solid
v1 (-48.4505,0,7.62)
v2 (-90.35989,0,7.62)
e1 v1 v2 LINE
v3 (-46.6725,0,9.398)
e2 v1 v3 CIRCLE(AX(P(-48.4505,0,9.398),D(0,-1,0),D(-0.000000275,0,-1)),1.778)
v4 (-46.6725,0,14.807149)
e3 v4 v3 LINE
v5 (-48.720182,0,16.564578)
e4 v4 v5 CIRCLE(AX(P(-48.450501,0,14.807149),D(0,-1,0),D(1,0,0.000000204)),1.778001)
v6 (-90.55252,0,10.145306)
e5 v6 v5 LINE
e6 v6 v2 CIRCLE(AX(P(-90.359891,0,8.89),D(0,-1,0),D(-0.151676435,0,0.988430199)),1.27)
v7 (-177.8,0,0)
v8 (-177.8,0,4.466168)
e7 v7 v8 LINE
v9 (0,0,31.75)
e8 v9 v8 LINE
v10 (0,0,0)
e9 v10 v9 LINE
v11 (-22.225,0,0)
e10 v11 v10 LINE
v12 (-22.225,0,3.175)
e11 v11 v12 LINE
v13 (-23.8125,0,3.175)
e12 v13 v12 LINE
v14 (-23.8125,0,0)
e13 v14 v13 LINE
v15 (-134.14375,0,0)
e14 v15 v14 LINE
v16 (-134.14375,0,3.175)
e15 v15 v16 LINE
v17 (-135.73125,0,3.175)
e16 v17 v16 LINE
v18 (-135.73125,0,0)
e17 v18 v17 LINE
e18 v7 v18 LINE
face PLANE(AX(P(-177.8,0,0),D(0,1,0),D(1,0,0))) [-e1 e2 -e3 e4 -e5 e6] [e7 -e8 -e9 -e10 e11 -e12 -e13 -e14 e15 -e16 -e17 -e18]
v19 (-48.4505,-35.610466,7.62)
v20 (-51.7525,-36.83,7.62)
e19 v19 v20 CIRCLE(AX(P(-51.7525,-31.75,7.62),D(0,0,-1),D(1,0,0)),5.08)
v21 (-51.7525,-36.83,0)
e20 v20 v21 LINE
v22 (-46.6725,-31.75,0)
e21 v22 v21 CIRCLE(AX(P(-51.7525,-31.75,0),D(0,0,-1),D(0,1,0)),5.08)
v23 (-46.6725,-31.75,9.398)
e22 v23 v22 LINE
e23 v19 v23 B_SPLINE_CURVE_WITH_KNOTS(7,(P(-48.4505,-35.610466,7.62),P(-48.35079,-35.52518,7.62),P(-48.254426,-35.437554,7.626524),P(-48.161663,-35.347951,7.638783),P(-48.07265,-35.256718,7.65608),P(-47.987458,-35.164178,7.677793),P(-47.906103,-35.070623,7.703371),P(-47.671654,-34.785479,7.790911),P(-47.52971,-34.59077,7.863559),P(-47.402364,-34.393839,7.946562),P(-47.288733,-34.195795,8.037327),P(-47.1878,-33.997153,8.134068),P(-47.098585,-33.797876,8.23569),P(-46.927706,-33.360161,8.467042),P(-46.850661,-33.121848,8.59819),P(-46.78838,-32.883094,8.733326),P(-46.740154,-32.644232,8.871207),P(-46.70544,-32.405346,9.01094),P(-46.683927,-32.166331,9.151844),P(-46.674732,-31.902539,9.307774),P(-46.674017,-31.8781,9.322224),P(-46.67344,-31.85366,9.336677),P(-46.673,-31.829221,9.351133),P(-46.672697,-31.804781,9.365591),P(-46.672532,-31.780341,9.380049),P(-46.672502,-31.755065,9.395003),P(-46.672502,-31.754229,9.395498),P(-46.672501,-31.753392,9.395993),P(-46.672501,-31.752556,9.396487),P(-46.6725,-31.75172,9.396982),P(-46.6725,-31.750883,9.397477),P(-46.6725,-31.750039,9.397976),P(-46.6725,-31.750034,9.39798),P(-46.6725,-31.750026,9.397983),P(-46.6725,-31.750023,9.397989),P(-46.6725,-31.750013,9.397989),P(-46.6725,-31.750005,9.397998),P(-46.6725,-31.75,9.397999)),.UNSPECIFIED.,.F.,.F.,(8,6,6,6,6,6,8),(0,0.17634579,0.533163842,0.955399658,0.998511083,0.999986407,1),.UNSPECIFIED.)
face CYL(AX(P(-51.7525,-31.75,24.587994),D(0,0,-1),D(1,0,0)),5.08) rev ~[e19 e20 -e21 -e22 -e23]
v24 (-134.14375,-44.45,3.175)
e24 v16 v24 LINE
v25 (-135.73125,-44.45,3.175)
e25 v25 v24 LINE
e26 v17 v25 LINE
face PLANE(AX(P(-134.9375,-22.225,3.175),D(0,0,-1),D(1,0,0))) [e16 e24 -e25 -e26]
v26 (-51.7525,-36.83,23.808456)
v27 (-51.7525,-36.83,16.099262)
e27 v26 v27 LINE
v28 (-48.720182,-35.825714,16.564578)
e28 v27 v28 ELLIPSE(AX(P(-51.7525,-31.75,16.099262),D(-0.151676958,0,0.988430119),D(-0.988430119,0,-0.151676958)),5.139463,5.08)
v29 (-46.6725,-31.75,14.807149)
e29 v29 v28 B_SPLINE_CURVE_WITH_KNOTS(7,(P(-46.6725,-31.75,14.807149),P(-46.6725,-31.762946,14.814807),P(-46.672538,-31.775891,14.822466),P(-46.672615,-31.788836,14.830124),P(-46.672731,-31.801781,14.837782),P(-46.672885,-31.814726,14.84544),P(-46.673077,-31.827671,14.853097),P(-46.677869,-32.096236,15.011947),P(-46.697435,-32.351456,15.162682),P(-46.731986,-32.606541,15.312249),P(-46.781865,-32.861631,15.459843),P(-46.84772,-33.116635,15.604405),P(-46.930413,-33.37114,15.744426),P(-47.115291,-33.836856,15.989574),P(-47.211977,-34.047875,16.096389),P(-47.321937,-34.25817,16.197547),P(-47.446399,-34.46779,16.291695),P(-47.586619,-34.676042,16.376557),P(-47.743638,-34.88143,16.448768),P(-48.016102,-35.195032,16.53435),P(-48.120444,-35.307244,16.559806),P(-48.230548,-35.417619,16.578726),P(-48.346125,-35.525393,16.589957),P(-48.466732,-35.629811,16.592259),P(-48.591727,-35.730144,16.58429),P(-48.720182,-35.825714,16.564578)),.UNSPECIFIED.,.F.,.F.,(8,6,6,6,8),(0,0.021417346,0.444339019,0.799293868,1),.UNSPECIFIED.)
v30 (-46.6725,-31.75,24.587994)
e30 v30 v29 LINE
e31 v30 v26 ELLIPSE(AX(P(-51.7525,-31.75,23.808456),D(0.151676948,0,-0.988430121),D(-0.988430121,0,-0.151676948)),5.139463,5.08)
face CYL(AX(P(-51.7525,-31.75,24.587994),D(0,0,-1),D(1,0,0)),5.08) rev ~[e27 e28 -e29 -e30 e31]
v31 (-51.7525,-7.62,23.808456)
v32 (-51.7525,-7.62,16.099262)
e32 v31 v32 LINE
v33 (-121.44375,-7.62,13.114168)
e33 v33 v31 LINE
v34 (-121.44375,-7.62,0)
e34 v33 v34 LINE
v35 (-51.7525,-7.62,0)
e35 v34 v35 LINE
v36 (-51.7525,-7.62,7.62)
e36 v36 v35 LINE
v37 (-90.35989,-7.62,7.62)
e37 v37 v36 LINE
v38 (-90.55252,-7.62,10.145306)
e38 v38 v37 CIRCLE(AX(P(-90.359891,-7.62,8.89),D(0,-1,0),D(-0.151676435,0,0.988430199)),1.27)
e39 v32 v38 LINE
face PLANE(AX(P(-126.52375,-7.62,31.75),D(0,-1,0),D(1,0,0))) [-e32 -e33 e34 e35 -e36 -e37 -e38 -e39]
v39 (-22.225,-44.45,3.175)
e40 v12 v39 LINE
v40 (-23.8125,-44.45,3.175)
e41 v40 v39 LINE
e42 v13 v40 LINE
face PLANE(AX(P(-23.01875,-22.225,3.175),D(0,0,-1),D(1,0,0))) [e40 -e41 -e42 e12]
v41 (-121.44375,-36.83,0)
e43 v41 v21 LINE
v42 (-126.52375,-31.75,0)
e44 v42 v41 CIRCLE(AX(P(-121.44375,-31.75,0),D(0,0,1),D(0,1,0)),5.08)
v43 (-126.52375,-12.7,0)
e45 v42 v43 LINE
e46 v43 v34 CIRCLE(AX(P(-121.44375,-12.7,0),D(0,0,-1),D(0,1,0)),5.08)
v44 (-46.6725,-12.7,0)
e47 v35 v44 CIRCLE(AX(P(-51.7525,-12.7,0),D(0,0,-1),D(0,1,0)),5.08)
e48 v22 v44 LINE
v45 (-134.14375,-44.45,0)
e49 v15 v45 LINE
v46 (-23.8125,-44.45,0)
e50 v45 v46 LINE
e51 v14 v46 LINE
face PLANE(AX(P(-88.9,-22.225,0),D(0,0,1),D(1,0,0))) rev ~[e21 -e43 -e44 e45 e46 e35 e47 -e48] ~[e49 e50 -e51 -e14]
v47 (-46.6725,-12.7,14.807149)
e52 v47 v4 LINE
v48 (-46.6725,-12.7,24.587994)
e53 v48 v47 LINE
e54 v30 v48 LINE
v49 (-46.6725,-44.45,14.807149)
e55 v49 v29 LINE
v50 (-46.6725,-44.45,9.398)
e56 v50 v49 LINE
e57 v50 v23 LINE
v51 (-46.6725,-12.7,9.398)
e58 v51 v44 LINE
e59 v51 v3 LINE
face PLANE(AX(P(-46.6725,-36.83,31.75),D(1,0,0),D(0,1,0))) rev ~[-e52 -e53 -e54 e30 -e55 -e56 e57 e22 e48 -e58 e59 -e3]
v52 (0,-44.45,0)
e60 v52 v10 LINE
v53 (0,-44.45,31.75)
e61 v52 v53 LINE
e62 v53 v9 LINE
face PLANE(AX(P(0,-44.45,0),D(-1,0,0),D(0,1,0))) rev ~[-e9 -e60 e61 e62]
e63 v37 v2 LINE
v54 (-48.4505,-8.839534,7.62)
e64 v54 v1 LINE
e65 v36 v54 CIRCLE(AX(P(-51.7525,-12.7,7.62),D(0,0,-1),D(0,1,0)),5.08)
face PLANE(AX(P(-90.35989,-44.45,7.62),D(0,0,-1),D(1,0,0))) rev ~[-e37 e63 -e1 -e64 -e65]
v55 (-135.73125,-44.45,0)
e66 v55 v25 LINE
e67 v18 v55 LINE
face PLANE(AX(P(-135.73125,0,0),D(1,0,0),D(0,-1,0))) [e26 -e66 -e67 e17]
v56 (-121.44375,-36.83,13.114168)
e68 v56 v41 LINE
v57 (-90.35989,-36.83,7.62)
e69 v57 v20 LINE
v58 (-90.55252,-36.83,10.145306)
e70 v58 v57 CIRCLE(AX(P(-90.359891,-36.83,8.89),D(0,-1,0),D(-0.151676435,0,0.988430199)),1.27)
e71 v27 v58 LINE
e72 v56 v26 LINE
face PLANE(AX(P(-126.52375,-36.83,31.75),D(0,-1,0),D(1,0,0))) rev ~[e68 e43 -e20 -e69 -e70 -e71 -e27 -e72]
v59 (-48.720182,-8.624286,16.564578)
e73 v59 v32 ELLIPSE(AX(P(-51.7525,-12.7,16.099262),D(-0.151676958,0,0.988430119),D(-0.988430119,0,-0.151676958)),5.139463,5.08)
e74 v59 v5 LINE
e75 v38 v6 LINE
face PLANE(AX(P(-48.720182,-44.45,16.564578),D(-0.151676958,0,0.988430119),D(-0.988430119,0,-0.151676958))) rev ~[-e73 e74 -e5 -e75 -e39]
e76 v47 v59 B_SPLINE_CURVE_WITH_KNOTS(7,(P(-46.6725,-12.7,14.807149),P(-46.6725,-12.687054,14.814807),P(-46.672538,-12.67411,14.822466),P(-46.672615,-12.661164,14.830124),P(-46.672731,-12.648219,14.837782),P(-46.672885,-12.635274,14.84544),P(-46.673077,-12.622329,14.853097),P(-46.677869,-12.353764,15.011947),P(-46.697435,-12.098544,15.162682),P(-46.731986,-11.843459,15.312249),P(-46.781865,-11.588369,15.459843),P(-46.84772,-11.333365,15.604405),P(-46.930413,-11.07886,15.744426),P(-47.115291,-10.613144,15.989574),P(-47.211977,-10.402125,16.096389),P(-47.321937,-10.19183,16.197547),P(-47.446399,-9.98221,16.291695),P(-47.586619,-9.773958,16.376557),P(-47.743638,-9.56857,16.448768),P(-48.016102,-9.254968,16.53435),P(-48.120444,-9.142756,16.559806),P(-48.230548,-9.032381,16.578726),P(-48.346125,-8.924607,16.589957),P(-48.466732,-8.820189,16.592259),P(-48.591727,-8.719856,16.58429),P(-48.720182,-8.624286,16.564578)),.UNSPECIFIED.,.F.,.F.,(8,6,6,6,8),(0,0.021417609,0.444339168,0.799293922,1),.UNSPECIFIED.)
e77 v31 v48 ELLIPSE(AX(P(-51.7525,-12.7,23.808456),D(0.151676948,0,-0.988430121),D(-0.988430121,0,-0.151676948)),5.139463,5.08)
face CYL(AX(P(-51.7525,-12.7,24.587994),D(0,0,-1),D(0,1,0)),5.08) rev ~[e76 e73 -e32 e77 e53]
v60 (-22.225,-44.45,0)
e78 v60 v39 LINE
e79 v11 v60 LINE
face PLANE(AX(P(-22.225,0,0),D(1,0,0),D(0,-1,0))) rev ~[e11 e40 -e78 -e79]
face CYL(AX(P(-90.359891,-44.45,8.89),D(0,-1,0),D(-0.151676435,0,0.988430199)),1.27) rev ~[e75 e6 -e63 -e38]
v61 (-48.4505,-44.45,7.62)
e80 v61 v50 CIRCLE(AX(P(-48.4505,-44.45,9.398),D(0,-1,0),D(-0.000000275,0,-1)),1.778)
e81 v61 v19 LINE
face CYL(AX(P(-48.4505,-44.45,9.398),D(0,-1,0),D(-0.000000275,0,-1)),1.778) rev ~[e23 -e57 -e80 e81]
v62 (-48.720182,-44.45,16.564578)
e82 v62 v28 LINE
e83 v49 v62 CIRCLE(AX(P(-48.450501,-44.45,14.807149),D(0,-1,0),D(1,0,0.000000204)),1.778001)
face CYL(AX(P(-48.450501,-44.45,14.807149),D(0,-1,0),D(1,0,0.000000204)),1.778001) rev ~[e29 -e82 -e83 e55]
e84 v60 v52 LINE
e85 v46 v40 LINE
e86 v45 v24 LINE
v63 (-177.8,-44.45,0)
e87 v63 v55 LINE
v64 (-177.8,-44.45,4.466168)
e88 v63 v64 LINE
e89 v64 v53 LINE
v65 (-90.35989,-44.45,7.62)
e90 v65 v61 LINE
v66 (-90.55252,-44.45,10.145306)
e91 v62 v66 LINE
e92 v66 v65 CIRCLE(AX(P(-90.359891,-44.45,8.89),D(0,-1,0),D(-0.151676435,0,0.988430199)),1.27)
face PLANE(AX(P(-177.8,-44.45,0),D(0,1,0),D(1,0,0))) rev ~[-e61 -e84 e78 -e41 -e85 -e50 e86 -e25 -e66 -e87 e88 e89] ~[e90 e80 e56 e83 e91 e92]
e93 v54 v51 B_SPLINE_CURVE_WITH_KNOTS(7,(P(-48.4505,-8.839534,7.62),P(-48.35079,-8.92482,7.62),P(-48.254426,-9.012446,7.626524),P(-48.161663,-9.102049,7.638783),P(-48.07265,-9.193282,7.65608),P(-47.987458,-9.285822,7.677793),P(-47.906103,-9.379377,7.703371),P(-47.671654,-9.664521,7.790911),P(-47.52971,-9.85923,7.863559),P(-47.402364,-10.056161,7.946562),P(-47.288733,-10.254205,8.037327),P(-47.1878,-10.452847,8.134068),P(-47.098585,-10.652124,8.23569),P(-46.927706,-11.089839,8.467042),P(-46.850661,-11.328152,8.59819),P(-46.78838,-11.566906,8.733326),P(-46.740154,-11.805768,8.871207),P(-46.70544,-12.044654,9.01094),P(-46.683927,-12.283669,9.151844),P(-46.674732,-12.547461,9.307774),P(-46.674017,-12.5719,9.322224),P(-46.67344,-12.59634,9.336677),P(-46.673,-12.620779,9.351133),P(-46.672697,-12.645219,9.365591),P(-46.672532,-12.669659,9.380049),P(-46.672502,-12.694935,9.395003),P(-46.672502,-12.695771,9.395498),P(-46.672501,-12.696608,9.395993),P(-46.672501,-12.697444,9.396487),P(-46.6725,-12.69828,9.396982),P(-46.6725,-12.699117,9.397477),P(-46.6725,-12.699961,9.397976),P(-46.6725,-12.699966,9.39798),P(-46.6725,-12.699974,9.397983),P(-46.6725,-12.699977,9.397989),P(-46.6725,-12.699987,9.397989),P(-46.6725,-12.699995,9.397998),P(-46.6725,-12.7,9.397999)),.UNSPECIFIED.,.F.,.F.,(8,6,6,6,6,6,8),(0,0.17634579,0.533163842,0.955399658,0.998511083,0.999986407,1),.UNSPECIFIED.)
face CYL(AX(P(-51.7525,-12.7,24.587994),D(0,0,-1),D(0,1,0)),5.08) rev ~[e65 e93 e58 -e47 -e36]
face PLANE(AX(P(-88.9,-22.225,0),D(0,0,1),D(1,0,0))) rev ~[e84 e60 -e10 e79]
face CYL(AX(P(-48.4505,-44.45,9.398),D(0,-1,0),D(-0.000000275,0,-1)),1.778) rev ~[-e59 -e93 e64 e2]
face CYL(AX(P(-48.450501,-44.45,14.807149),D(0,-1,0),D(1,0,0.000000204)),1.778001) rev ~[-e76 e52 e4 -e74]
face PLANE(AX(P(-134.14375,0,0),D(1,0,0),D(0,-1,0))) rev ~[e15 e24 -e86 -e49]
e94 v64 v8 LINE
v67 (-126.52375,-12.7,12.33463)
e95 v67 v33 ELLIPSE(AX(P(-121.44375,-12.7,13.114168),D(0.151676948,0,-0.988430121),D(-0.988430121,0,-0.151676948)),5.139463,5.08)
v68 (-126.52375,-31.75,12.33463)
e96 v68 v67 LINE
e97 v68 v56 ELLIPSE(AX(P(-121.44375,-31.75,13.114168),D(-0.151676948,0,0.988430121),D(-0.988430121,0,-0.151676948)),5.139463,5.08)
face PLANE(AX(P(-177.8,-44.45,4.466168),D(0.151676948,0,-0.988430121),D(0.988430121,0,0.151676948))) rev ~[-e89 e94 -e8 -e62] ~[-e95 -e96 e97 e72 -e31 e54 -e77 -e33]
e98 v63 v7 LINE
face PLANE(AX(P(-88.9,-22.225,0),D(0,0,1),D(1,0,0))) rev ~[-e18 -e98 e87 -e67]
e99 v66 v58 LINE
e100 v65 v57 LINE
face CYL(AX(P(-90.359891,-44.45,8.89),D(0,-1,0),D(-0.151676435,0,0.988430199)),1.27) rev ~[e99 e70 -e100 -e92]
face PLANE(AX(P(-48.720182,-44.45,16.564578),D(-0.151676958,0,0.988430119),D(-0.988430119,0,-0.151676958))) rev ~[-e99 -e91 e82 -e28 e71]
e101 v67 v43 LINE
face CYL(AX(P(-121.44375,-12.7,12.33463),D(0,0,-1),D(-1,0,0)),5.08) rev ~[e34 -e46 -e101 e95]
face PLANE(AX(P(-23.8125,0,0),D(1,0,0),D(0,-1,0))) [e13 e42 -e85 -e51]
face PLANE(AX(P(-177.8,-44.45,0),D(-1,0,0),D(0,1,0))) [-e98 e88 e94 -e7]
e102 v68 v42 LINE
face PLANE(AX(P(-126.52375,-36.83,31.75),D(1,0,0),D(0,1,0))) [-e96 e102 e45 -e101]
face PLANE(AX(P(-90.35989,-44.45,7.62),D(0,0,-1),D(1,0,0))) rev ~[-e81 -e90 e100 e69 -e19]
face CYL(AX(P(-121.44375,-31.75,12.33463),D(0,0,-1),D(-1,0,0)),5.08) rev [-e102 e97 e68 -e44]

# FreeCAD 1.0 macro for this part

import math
import FreeCAD as App
import Part
import Sketcher
from FreeCAD import Vector
Q = App.Units.Quantity


def edges_at(feature, points):
    """Names of the edges that pass closest to the given points."""
    edges = feature.Shape.Edges
    near = lambda p: min(range(len(edges)), key=lambda i: edges[i].distToShape(Part.Vertex(*p))[0])
    return sorted({f"Edge{near(p) + 1}" for p in points})

doc = App.newDocument("Part")
body = doc.addObject("PartDesign::Body", "Body")

# Sketch on XY plane
sketch1 = doc.addObject("Sketcher::SketchObject", "Sketch")
body.addObject(sketch1)
sketch1.AttachmentSupport = (doc.XY_Plane, [""])
sketch1.MapMode = "FlatFace"
sketch1.addGeometry([
    Part.LineSegment(Vector(-178, 0, 0), Vector(-178, -44, 0)),
    Part.LineSegment(Vector(-178, -44, 0), Vector(0, -44, 0)),
    Part.LineSegment(Vector(0, -44, 0), Vector(0, 0, 0)),
    Part.LineSegment(Vector(0, 0, 0), Vector(-178, 0, 0)),
], False)
sketch1.addConstraint([
    Sketcher.Constraint("Coincident", 0, 2, 1, 1),
    Sketcher.Constraint("Coincident", 1, 2, 2, 1),
    Sketcher.Constraint("Coincident", 2, 2, 3, 1),
    Sketcher.Constraint("Coincident", 3, 2, 0, 1),
    Sketcher.Constraint("Vertical", 0),
    Sketcher.Constraint("Horizontal", 1),
    Sketcher.Constraint("Vertical", 2),
    Sketcher.Constraint("Horizontal", 3),
    Sketcher.Constraint("Coincident", 2, 2, -1, 1),
    Sketcher.Constraint("DistanceX", 1, 1, 1, 2, Q("7 in")),
    Sketcher.Constraint("DistanceY", 0, 2, 0, 1, Q("1.75 in")),
])
pad1 = doc.addObject("PartDesign::Pad", "Pad")
body.addObject(pad1)
pad1.Profile = sketch1
pad1.Length = Q("1.25 in")

# Sketch on XY plane
sketch2 = doc.addObject("Sketcher::SketchObject", "Sketch001")
body.addObject(sketch2)
sketch2.AttachmentSupport = (doc.XY_Plane, [""])
sketch2.MapMode = "FlatFace"
sketch2.addGeometry([
    Part.LineSegment(Vector(-23.8, -44.5, 0), Vector(-23.8, 0, 0)),  # 0
    Part.LineSegment(Vector(-23.8, 0, 0), Vector(-22.2, 0, 0)),  # 1
    Part.LineSegment(Vector(-22.2, 0, 0), Vector(-22.2, -44.5, 0)),  # 2
    Part.LineSegment(Vector(-22.2, -44.5, 0), Vector(-23.8, -44.5, 0)),  # 3
    Part.LineSegment(Vector(-135.7, -44.5, 0), Vector(-135.7, 0, 0)),  # 4
    Part.LineSegment(Vector(-135.7, 0, 0), Vector(-134.1, 0, 0)),  # 5
    Part.LineSegment(Vector(-134.1, 0, 0), Vector(-134.1, -44.5, 0)),  # 6
    Part.LineSegment(Vector(-134.1, -44.5, 0), Vector(-135.7, -44.5, 0)),  # 7
], False)
sketch2.addConstraint([
    Sketcher.Constraint("Coincident", 0, 2, 1, 1),
    Sketcher.Constraint("Coincident", 1, 2, 2, 1),
    Sketcher.Constraint("Coincident", 2, 2, 3, 1),
    Sketcher.Constraint("Coincident", 3, 2, 0, 1),
    Sketcher.Constraint("Coincident", 4, 2, 5, 1),
    Sketcher.Constraint("Coincident", 5, 2, 6, 1),
    Sketcher.Constraint("Coincident", 6, 2, 7, 1),
    Sketcher.Constraint("Coincident", 7, 2, 4, 1),
    Sketcher.Constraint("Vertical", 0),
    Sketcher.Constraint("Horizontal", 1),
    Sketcher.Constraint("Vertical", 2),
    Sketcher.Constraint("Horizontal", 3),
    Sketcher.Constraint("Vertical", 4),
    Sketcher.Constraint("Horizontal", 5),
    Sketcher.Constraint("Vertical", 6),
    Sketcher.Constraint("Horizontal", 7),
    Sketcher.Constraint("PointOnObject", 0, 2, -1),
    Sketcher.Constraint("PointOnObject", 4, 2, -1),
    Sketcher.Constraint("Horizontal", 3, 2, 6, 2),
    Sketcher.Constraint("Equal", 3, 5),
    Sketcher.Constraint("DistanceY", 0, 1, 0, 2, Q("1.75 in")),
    Sketcher.Constraint("DistanceX", 1, 1, 1, 2, Q("0.0625 in")),
    Sketcher.Constraint("DistanceX", 0, 2, -1, 1, Q("0.9375 in")),
    Sketcher.Constraint("DistanceX", 4, 2, -1, 1, Q("5.34375 in")),
])
pocket1 = doc.addObject("PartDesign::Pocket", "Pocket")
body.addObject(pocket1)
pocket1.Profile = sketch2
pocket1.Length = Q("0.125 in")
pocket1.Reversed = True

# Sketch on XY plane
sketch3 = doc.addObject("Sketcher::SketchObject", "Sketch002")
body.addObject(sketch3)
sketch3.AttachmentSupport = (doc.XY_Plane, [""])
sketch3.MapMode = "FlatFace"
sketch3.AttachmentOffset = App.Placement(Vector(0, 0, 1.25 * 25.4), App.Rotation())
sketch3.addGeometry([
    Part.LineSegment(Vector(-127, -8, 0), Vector(-127, -37, 0)),
    Part.LineSegment(Vector(-127, -37, 0), Vector(-47, -37, 0)),
    Part.LineSegment(Vector(-47, -37, 0), Vector(-47, -8, 0)),
    Part.LineSegment(Vector(-47, -8, 0), Vector(-127, -8, 0)),
], False)
sketch3.addConstraint([
    Sketcher.Constraint("Coincident", 0, 2, 1, 1),
    Sketcher.Constraint("Coincident", 1, 2, 2, 1),
    Sketcher.Constraint("Coincident", 2, 2, 3, 1),
    Sketcher.Constraint("Coincident", 3, 2, 0, 1),
    Sketcher.Constraint("Vertical", 0),
    Sketcher.Constraint("Horizontal", 1),
    Sketcher.Constraint("Vertical", 2),
    Sketcher.Constraint("Horizontal", 3),
    Sketcher.Constraint("DistanceY", 0, 2, 0, 1, Q("1.15 in")),
    Sketcher.Constraint("DistanceY", 2, 2, -1, 1, Q("0.3 in")),
    Sketcher.Constraint("DistanceX", 1, 2, -1, 1, Q("1.8375 in")),
    Sketcher.Constraint("DistanceX", 1, 1, 1, 2, Q("79.85125 mm")),
])
pocket2 = doc.addObject("PartDesign::Pocket", "Pocket001")
body.addObject(pocket2)
pocket2.Profile = sketch3
pocket2.Type = "ThroughAll"

# Sketch on XZ plane
sketch4 = doc.addObject("Sketcher::SketchObject", "Sketch003")
body.addObject(sketch4)
sketch4.AttachmentSupport = (doc.XZ_Plane, [""])
sketch4.MapMode = "FlatFace"
sketch4.AttachmentOffset = App.Placement(Vector(0, 0, 1.75 * 25.4), App.Rotation())
sketch4.addGeometry([
    Part.LineSegment(Vector(-178, 32, 0), Vector(-178, 4, 0)),
    Part.LineSegment(Vector(-178, 4, 0), Vector(0, 32, 0)),
    Part.LineSegment(Vector(0, 32, 0), Vector(-178, 32, 0)),
], False)
sketch4.addConstraint([
    Sketcher.Constraint("Coincident", 0, 2, 1, 1),
    Sketcher.Constraint("Coincident", 1, 2, 2, 1),
    Sketcher.Constraint("Coincident", 2, 2, 0, 1),
    Sketcher.Constraint("Vertical", 0),
    Sketcher.Constraint("Horizontal", 2),
    Sketcher.Constraint("PointOnObject", 1, 2, -2),
    Sketcher.Constraint("DistanceX", 2, 2, 2, 1, Q("7 in")),
    Sketcher.Constraint("DistanceY", -1, 1, 1, 2, Q("1.25 in")),
    Sketcher.Constraint("DistanceY", 0, 2, 0, 1, Q("27.283832 mm")),
])
pocket3 = doc.addObject("PartDesign::Pocket", "Pocket002")
body.addObject(pocket3)
pocket3.Profile = sketch4
pocket3.Type = "ThroughAll"
doc.recompute()

fillet = doc.addObject("PartDesign::Fillet", "Fillet")
body.addObject(fillet)
fillet.Base = (pocket3, edges_at(pocket3, [
    (-126.524, -7.62, 6.167),
    (-46.672, -7.62, 12.294),
    (-126.524, -36.83, 6.167),
    (-46.672, -36.83, 12.294),
]))
fillet.Radius = Q("0.2 in")

# Sketch on XZ plane
sketch5 = doc.addObject("Sketcher::SketchObject", "Sketch004")
body.addObject(sketch5)
sketch5.AttachmentSupport = (doc.XZ_Plane, [""])
sketch5.MapMode = "FlatFace"
sketch5.AttachmentOffset = App.Placement(Vector(0, 0, 1.75 * 25.4), App.Rotation())
sketch5.addGeometry([
    Part.LineSegment(Vector(-48.7, 16.6, 0), Vector(-90.6, 10.1, 0)),  # 0
    Part.ArcOfCircle(Part.Circle(Vector(-90.4, 8.9, 0), Vector(0, 0, 1), 1.3), math.radians(99), math.radians(270)),  # 1
    Part.LineSegment(Vector(-90.4, 7.6, 0), Vector(-48.5, 7.6, 0)),  # 2
    Part.ArcOfCircle(Part.Circle(Vector(-48.5, 9.4, 0), Vector(0, 0, 1), 1.8), math.radians(-90), math.radians(0)),  # 3
    Part.LineSegment(Vector(-46.7, 9.4, 0), Vector(-46.7, 14.8, 0)),  # 4
    Part.ArcOfCircle(Part.Circle(Vector(-48.5, 14.8, 0), Vector(0, 0, 1), 1.8), math.radians(0), math.radians(99)),  # 5
], False)
sketch5.addConstraint([
    Sketcher.Constraint("Tangent", 0, 2, 1, 1),
    Sketcher.Constraint("Tangent", 1, 2, 2, 1),
    Sketcher.Constraint("Tangent", 2, 2, 3, 1),
    Sketcher.Constraint("Tangent", 3, 2, 4, 1),
    Sketcher.Constraint("Tangent", 4, 2, 5, 1),
    Sketcher.Constraint("Tangent", 5, 2, 0, 1),
    Sketcher.Constraint("Horizontal", 2),
    Sketcher.Constraint("Vertical", 4),
    Sketcher.Constraint("Equal", 3, 5),
    Sketcher.Constraint("Radius", 1, Q("0.05 in")),
    Sketcher.Constraint("Radius", 3, Q("0.07 in")),
    Sketcher.Constraint("DistanceY", -1, 1, 1, 2, Q("0.3 in")),
    Sketcher.Constraint("DistanceX", 3, 3, -1, 1, Q("1.9075 in")),
    Sketcher.Constraint("Distance", 0, Q("42.321998 mm")),
    Sketcher.Constraint("DistanceX", 2, 1, 2, 2, Q("41.90939 mm")),
])
pocket4 = doc.addObject("PartDesign::Pocket", "Pocket003")
body.addObject(pocket4)
pocket4.Profile = sketch5
pocket4.Type = "ThroughAll"

doc.recompute()
